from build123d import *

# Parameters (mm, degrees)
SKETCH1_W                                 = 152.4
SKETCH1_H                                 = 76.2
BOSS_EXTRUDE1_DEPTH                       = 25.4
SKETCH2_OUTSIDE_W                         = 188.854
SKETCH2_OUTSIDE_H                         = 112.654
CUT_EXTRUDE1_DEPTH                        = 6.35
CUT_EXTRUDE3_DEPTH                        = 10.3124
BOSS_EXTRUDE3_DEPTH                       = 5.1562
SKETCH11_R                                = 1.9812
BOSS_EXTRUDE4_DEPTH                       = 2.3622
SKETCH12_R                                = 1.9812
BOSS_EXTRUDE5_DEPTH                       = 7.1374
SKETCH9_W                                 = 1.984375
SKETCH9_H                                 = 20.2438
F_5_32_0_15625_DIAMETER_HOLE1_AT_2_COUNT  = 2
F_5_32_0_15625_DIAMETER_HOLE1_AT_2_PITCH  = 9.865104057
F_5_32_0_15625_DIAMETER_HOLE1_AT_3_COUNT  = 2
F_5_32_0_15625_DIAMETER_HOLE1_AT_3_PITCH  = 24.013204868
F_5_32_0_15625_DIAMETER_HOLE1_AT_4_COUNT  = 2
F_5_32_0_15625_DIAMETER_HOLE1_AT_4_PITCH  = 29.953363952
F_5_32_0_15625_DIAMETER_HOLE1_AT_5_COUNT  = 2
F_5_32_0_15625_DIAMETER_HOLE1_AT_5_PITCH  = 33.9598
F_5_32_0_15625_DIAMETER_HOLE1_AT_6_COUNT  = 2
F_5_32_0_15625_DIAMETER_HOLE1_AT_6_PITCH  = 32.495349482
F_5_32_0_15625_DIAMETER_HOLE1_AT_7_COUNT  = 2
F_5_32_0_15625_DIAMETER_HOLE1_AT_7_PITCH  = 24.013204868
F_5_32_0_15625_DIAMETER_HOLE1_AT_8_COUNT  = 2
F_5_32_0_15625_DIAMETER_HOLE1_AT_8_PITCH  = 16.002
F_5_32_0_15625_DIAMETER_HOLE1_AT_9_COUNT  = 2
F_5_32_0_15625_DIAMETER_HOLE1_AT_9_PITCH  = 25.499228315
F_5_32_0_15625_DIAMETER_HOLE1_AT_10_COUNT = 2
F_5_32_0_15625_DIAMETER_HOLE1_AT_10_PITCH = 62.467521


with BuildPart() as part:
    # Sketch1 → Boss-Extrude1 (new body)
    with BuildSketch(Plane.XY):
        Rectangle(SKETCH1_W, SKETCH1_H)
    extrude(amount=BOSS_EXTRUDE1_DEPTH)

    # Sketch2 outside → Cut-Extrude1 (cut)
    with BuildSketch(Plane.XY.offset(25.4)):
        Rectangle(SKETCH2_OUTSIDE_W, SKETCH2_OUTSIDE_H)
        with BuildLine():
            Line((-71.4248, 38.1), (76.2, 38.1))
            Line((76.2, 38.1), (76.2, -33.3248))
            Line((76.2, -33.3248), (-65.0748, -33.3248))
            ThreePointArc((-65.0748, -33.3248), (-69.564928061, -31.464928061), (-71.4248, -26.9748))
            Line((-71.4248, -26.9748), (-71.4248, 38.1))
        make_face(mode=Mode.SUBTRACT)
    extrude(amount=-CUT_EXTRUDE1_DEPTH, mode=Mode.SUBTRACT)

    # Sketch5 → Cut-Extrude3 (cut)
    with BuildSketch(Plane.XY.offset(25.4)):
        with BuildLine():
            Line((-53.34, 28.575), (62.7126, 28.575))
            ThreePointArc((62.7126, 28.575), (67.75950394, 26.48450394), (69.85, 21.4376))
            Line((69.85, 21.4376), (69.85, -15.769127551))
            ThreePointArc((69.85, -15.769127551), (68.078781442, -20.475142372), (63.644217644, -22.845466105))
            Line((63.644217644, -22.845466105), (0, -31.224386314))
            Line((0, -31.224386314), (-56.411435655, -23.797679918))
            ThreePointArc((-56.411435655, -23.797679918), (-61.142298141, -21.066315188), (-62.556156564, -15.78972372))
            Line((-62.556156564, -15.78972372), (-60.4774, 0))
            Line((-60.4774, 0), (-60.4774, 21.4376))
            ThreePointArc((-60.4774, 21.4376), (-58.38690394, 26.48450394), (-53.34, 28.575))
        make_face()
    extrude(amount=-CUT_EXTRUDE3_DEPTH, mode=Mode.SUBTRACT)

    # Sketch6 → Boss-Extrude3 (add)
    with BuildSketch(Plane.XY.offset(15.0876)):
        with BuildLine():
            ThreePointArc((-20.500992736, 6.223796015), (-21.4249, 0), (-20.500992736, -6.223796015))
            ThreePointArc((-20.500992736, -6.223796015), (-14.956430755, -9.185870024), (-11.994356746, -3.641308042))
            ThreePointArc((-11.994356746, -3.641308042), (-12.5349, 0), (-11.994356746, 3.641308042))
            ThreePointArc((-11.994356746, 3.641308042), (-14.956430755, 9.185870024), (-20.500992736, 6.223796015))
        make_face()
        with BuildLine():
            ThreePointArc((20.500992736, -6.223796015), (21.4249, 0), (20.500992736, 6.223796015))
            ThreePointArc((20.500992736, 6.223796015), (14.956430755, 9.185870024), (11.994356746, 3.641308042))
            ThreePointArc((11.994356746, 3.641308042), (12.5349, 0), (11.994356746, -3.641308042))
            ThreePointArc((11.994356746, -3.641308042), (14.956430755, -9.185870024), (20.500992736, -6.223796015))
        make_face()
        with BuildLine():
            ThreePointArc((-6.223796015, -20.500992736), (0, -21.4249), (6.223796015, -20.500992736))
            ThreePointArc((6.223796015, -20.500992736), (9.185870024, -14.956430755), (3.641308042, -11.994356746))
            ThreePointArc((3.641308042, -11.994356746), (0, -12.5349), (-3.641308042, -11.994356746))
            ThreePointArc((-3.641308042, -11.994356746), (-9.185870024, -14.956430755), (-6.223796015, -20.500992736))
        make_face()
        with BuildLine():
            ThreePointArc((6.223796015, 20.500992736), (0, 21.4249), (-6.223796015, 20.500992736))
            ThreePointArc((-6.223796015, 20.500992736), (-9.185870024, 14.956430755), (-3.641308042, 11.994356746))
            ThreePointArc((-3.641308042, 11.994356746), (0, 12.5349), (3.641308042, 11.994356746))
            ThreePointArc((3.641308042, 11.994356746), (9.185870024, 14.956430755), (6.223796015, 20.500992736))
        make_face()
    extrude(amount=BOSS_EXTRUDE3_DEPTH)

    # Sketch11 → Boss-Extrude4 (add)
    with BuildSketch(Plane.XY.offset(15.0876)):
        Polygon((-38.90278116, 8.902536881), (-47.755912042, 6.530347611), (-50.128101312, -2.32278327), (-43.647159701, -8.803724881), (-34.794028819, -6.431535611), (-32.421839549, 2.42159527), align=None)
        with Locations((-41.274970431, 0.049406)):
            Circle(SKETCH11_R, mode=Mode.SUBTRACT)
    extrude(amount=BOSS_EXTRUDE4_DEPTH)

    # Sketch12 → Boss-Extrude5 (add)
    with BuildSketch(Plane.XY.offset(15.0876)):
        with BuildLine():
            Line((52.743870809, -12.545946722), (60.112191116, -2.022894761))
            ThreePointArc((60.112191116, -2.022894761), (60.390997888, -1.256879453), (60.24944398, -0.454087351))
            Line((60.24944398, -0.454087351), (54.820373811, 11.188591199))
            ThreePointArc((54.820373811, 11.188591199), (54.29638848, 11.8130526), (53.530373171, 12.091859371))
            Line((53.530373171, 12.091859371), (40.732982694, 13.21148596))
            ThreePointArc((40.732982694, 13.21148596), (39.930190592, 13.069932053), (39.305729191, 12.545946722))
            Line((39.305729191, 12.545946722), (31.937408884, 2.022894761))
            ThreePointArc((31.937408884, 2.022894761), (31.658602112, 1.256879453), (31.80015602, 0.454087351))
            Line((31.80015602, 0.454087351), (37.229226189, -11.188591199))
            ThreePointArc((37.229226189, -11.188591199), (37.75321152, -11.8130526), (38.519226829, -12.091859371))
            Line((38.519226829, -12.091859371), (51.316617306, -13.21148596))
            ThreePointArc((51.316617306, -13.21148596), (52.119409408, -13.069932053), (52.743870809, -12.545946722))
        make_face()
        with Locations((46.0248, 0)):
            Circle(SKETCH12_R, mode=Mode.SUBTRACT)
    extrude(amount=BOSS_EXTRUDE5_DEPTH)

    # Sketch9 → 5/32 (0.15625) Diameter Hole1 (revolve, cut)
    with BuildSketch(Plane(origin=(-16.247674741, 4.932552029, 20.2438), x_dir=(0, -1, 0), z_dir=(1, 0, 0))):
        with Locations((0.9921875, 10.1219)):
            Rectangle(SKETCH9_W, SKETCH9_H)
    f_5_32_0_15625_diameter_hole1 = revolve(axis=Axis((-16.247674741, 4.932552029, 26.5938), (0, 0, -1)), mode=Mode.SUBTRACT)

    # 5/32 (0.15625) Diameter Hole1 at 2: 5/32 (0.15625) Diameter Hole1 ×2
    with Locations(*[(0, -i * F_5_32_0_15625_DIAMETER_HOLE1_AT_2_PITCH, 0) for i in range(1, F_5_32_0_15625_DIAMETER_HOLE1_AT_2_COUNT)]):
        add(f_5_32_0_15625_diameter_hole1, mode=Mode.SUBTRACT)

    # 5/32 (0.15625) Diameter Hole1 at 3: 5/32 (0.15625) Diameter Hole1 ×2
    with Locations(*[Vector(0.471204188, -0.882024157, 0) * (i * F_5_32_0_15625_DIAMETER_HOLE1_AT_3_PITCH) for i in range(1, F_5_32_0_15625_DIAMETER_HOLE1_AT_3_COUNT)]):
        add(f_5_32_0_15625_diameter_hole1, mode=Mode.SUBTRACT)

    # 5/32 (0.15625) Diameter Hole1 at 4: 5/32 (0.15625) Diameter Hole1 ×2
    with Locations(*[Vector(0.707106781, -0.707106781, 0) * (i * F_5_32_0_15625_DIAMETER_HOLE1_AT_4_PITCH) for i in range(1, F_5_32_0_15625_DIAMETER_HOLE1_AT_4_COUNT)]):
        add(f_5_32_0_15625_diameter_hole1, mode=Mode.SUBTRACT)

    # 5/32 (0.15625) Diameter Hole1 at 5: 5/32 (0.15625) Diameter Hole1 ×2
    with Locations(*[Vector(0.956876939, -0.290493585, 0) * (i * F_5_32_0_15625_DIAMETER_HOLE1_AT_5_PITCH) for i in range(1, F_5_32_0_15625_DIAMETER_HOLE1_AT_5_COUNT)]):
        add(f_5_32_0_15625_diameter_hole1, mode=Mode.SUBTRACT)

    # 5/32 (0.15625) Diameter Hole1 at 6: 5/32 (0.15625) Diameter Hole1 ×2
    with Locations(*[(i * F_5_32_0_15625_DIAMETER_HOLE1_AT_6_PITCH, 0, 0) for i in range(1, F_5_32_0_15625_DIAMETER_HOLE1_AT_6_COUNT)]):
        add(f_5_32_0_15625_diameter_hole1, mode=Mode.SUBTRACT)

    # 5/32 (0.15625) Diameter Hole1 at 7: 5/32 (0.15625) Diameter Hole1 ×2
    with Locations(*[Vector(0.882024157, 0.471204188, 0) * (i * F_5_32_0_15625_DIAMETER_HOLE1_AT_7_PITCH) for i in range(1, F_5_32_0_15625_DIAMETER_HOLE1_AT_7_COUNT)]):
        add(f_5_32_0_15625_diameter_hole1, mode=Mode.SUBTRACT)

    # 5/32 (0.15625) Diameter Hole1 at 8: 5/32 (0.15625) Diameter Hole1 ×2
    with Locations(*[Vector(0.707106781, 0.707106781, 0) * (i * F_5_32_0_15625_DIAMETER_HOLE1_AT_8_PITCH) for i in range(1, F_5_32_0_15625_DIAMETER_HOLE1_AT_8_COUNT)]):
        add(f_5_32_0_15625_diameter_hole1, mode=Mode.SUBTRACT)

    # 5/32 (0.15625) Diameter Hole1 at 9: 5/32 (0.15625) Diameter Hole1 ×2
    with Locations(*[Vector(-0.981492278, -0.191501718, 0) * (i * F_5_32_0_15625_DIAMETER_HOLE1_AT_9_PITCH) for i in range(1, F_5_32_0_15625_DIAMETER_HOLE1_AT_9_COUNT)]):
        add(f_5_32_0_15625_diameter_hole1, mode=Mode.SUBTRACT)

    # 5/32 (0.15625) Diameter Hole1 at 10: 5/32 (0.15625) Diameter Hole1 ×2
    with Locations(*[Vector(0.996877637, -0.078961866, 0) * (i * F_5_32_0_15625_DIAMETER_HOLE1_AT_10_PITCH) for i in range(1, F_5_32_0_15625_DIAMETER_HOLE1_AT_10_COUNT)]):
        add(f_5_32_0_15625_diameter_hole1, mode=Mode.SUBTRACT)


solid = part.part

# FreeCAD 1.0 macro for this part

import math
import FreeCAD as App
import Part
import Sketcher
Q = App.Units.Quantity


def add_polygon(sketch, points):
    """Adds a closed chain of lines whose ends are joined by coincident constraints."""
    first, n = sketch.GeometryCount, len(points)
    for a, b in zip(points, points[1:] + points[:1]):
        sketch.addGeometry(Part.LineSegment(App.Vector(*a, 0), App.Vector(*b, 0)), False)
    for i in range(n):
        sketch.addConstraint(Sketcher.Constraint("Coincident", first + i, 2, first + (i + 1) % n, 1))

doc = App.newDocument("Part")
params = doc.addObject("Spreadsheet::Sheet", "Params")
for row, (alias, value) in enumerate([
    ("sketch1_width", "6 in"),
    ("sketch1_height", "3 in"),
    ("pad1_length", "1 in"),
    ("sketch2_radius", "0.25 in"),
    ("sketch2_width", "5.812 in"),
    ("sketch2_height", "2.562 in"),
    ("pocket1_length", "0.25 in"),
    ("sketch3_radius", "0.281 in"),
    ("sketch3_width", "4.569 in"),
    ("sketch3_height", "0.844 in"),
    ("pocket2_length", "0.406 in"),
    ("sketch4_radius", "0.175 in"),
    ("pad2_length", "0.203 in"),
    ("sketch5_diameter", "0.156 in"),
    ("pad3_length", "0.093 in"),
    ("sketch6_diameter", "0.156 in"),
    ("sketch6_radius", "0.062 in"),
    ("pad4_length", "0.281 in"),
    ("sketch7_width", "0.078125 in"),
    ("sketch7_height", "0.797 in"),
    ("groove_angle", "360 deg"),
    ("linearpattern_pitch", "9.865104 mm"),
    ("linearpattern2_pitch", "24.013205 mm"),
    ("linearpattern3_pitch", "29.953364 mm"),
    ("linearpattern4_pitch", "1.337 in"),
    ("linearpattern5_pitch", "32.495349 mm"),
    ("linearpattern6_pitch", "24.013205 mm"),
    ("linearpattern7_pitch", "0.63 in"),
    ("linearpattern8_pitch", "25.499228 mm"),
    ("linearpattern9_pitch", "62.467521 mm"),
], start=1):
    params.set(f"A{row}", alias)
    params.set(f"B{row}", "=" + value)
    params.setAlias(f"B{row}", alias)

body = doc.addObject("PartDesign::Body", "Body")

# Sketch on XY plane
sketch1 = body.newObject("Sketcher::SketchObject", "Sketch")
sketch1.AttachmentSupport = (doc.getObject("XY_Plane"), [""])
sketch1.MapMode = "FlatFace"
add_polygon(sketch1, [(-76, 38), (-76, -38), (76, -38), (76, 38)])  # lines 0-3
sketch1.addConstraint(Sketcher.Constraint("Vertical", 0))
sketch1.addConstraint(Sketcher.Constraint("Horizontal", 1))
sketch1.addConstraint(Sketcher.Constraint("Vertical", 2))
sketch1.addConstraint(Sketcher.Constraint("Horizontal", 3))
sketch1.addConstraint(Sketcher.Constraint("Symmetric", 0, 2, 2, 2, -1, 1))
sketch1.addConstraint(Sketcher.Constraint("DistanceX", 1, 1, 1, 2, Q("6 in")))
sketch1.addConstraint(Sketcher.Constraint("DistanceY", 0, 2, 0, 1, Q("3 in")))
sketch1.setExpression("Constraints[9]", "Params.sketch1_width")
sketch1.setExpression("Constraints[10]", "Params.sketch1_height")
pad1 = body.newObject("PartDesign::Pad", "Pad")
pad1.Profile = sketch1
pad1.setExpression("Length", "Params.pad1_length")

# Sketch on XY plane
sketch2 = body.newObject("Sketcher::SketchObject", "Sketch001")
sketch2.AttachmentSupport = (doc.getObject("XY_Plane"), [""])
sketch2.MapMode = "FlatFace"
sketch2.AttachmentOffset = App.Placement(App.Vector(0, 0, 1 * 25.4), App.Rotation())
add_polygon(sketch2, [(-94, 56), (-94, -56), (94, -56), (94, 56)])  # lines 0-3
sketch2.addGeometry(Part.LineSegment(App.Vector(-71, -27, 0), App.Vector(-71, 38, 0)), False)  # 4
sketch2.addGeometry(Part.LineSegment(App.Vector(-71, 38, 0), App.Vector(76, 38, 0)), False)  # 5
sketch2.addGeometry(Part.LineSegment(App.Vector(76, 38, 0), App.Vector(76, -33, 0)), False)  # 6
sketch2.addGeometry(Part.LineSegment(App.Vector(76, -33, 0), App.Vector(-65, -33, 0)), False)  # 7
sketch2.addGeometry(Part.ArcOfCircle(Part.Circle(App.Vector(-65, -27, 0), App.Vector(0, 0, 1), 6), math.radians(180), math.radians(270)), False)  # 8
sketch2.addConstraint(Sketcher.Constraint("Coincident", 4, 2, 5, 1))
sketch2.addConstraint(Sketcher.Constraint("Coincident", 5, 2, 6, 1))
sketch2.addConstraint(Sketcher.Constraint("Coincident", 6, 2, 7, 1))
sketch2.addConstraint(Sketcher.Constraint("Tangent", 7, 2, 8, 2))
sketch2.addConstraint(Sketcher.Constraint("Tangent", 8, 1, 4, 1))
sketch2.addConstraint(Sketcher.Constraint("Vertical", 0))
sketch2.addConstraint(Sketcher.Constraint("Horizontal", 1))
sketch2.addConstraint(Sketcher.Constraint("Vertical", 2))
sketch2.addConstraint(Sketcher.Constraint("Horizontal", 3))
sketch2.addConstraint(Sketcher.Constraint("Vertical", 4))
sketch2.addConstraint(Sketcher.Constraint("Horizontal", 5))
sketch2.addConstraint(Sketcher.Constraint("Vertical", 6))
sketch2.addConstraint(Sketcher.Constraint("Horizontal", 7))
sketch2.addConstraint(Sketcher.Constraint("Symmetric", 0, 2, 2, 2, -1, 1))
sketch2.addConstraint(Sketcher.Constraint("Radius", 8, Q("0.25 in")))
sketch2.addConstraint(Sketcher.Constraint("DistanceX", -1, 1, 5, 2, Q("3 in")))
sketch2.addConstraint(Sketcher.Constraint("DistanceY", -1, 1, 4, 2, Q("1.5 in")))
sketch2.addConstraint(Sketcher.Constraint("DistanceX", 5, 1, 5, 2, Q("5.812 in")))
sketch2.addConstraint(Sketcher.Constraint("DistanceY", 4, 1, 4, 2, Q("2.562 in")))
sketch2.addConstraint(Sketcher.Constraint("DistanceX", 1, 1, 1, 2, 188.854))
sketch2.addConstraint(Sketcher.Constraint("DistanceY", 0, 2, 0, 1, 112.654))
sketch2.setExpression("Constraints[18]", "Params.sketch2_radius")
sketch2.setExpression("Constraints[21]", "Params.sketch2_width")
sketch2.setExpression("Constraints[22]", "Params.sketch2_height")
pocket1 = body.newObject("PartDesign::Pocket", "Pocket")
pocket1.Profile = sketch2
pocket1.setExpression("Length", "Params.pocket1_length")

# Sketch on XY plane
sketch3 = body.newObject("Sketcher::SketchObject", "Sketch002")
sketch3.AttachmentSupport = (doc.getObject("XY_Plane"), [""])
sketch3.MapMode = "FlatFace"
sketch3.AttachmentOffset = App.Placement(App.Vector(0, 0, 1 * 25.4), App.Rotation())
sketch3.addGeometry(Part.LineSegment(App.Vector(63, 29, 0), App.Vector(-53, 29, 0)), False)
sketch3.addGeometry(Part.ArcOfCircle(Part.Circle(App.Vector(-53, 21, 0), App.Vector(0, 0, 1), 7), math.radians(90), math.radians(180)), False)
sketch3.addGeometry(Part.LineSegment(App.Vector(-60, 21, 0), App.Vector(-60, 0, 0)), False)
sketch3.addGeometry(Part.LineSegment(App.Vector(-60, 0, 0), App.Vector(-63, -16, 0)), False)
sketch3.addGeometry(Part.ArcOfCircle(Part.Circle(App.Vector(-55, -17, 0), App.Vector(0, 0, 1), 7), math.radians(173), math.radians(262)), False)
sketch3.addGeometry(Part.LineSegment(App.Vector(-56, -24, 0), App.Vector(0, -31, 0)), False)
sketch3.addGeometry(Part.LineSegment(App.Vector(0, -31, 0), App.Vector(64, -23, 0)), False)
sketch3.addGeometry(Part.ArcOfCircle(Part.Circle(App.Vector(63, -16, 0), App.Vector(0, 0, 1), 7), math.radians(-83), math.radians(0)), False)
sketch3.addGeometry(Part.LineSegment(App.Vector(70, -16, 0), App.Vector(70, 21, 0)), False)
sketch3.addGeometry(Part.ArcOfCircle(Part.Circle(App.Vector(63, 21, 0), App.Vector(0, 0, 1), 7), math.radians(0), math.radians(90)), False)
sketch3.addConstraint(Sketcher.Constraint("Tangent", 0, 2, 1, 1))
sketch3.addConstraint(Sketcher.Constraint("Tangent", 1, 2, 2, 1))
sketch3.addConstraint(Sketcher.Constraint("Coincident", 2, 2, 3, 1))
sketch3.addConstraint(Sketcher.Constraint("Tangent", 3, 2, 4, 1))
sketch3.addConstraint(Sketcher.Constraint("Tangent", 4, 2, 5, 1))
sketch3.addConstraint(Sketcher.Constraint("Coincident", 5, 2, 6, 1))
sketch3.addConstraint(Sketcher.Constraint("Tangent", 6, 2, 7, 1))
sketch3.addConstraint(Sketcher.Constraint("Tangent", 7, 2, 8, 1))
sketch3.addConstraint(Sketcher.Constraint("Tangent", 8, 2, 9, 1))
sketch3.addConstraint(Sketcher.Constraint("Tangent", 9, 2, 0, 1))
sketch3.addConstraint(Sketcher.Constraint("Horizontal", 0))
sketch3.addConstraint(Sketcher.Constraint("Vertical", 2))
sketch3.addConstraint(Sketcher.Constraint("Vertical", 8))
sketch3.addConstraint(Sketcher.Constraint("Equal", 1, 4))
sketch3.addConstraint(Sketcher.Constraint("Equal", 4, 7))
sketch3.addConstraint(Sketcher.Constraint("Equal", 7, 9))
sketch3.addConstraint(Sketcher.Constraint("PointOnObject", 2, 2, -1))
sketch3.addConstraint(Sketcher.Constraint("PointOnObject", 5, 2, -2))
sketch3.addConstraint(Sketcher.Constraint("Perpendicular", 3, 5))
sketch3.addConstraint(Sketcher.Constraint("Radius", 1, Q("0.281 in")))
sketch3.addConstraint(Sketcher.Constraint("DistanceX", 1, 3, -1, 1, Q("2.1 in")))
sketch3.addConstraint(Sketcher.Constraint("Angle", 3, Q("-97.5 deg")))
sketch3.addConstraint(Sketcher.Constraint("Angle", 6, Q("7.5 deg")))
sketch3.addConstraint(Sketcher.Constraint("DistanceX", 0, 2, 0, 1, Q("4.569 in")))
sketch3.addConstraint(Sketcher.Constraint("DistanceY", 2, 2, 2, 1, Q("0.844 in")))
sketch3.addConstraint(Sketcher.Constraint("DistanceY", 8, 1, 8, 2, 37.206728))
sketch3.setExpression("Constraints[19]", "Params.sketch3_radius")
sketch3.setExpression("Constraints[23]", "Params.sketch3_width")
sketch3.setExpression("Constraints[24]", "Params.sketch3_height")
pocket2 = body.newObject("PartDesign::Pocket", "Pocket001")
pocket2.Profile = sketch3
pocket2.setExpression("Length", "Params.pocket2_length")

# Sketch on XY plane
sketch4 = body.newObject("Sketcher::SketchObject", "Sketch003")
sketch4.AttachmentSupport = (doc.getObject("XY_Plane"), [""])
sketch4.MapMode = "FlatFace"
sketch4.AttachmentOffset = App.Placement(App.Vector(0, 0, 0.594 * 25.4), App.Rotation())
sketch4.addGeometry(Part.ArcOfCircle(Part.Circle(App.Vector(0, 0, 0), App.Vector(0, 0, 1), 21.4), math.radians(163), math.radians(197)), False)
sketch4.addGeometry(Part.ArcOfCircle(Part.Circle(App.Vector(-16.2, -4.9, 0), App.Vector(0, 0, 1), 4.4), math.radians(-163), math.radians(17)), False)
sketch4.addGeometry(Part.ArcOfCircle(Part.Circle(App.Vector(0, 0, 0), App.Vector(0, 0, 1), 12.5), math.radians(163), math.radians(197)), False)
sketch4.addGeometry(Part.ArcOfCircle(Part.Circle(App.Vector(-16.2, 4.9, 0), App.Vector(0, 0, 1), 4.4), math.radians(-17), math.radians(163)), False)
sketch4.addGeometry(Part.ArcOfCircle(Part.Circle(App.Vector(0, 0, 0), App.Vector(0, 0, 1), 21.4), math.radians(-17), math.radians(17)), False)
sketch4.addGeometry(Part.ArcOfCircle(Part.Circle(App.Vector(16.2, 4.9, 0), App.Vector(0, 0, 1), 4.4), math.radians(17), math.radians(197)), False)
sketch4.addGeometry(Part.ArcOfCircle(Part.Circle(App.Vector(0, 0, 0), App.Vector(0, 0, 1), 12.5), math.radians(-17), math.radians(17)), False)
sketch4.addGeometry(Part.ArcOfCircle(Part.Circle(App.Vector(16.2, -4.9, 0), App.Vector(0, 0, 1), 4.4), math.radians(163), math.radians(343)), False)
sketch4.addGeometry(Part.ArcOfCircle(Part.Circle(App.Vector(0, 0, 0), App.Vector(0, 0, 1), 21.4), math.radians(-107), math.radians(-73)), False)
sketch4.addGeometry(Part.ArcOfCircle(Part.Circle(App.Vector(4.9, -16.2, 0), App.Vector(0, 0, 1), 4.4), math.radians(-73), math.radians(107)), False)
sketch4.addGeometry(Part.ArcOfCircle(Part.Circle(App.Vector(0, 0, 0), App.Vector(0, 0, 1), 12.5), math.radians(-107), math.radians(-73)), False)
sketch4.addGeometry(Part.ArcOfCircle(Part.Circle(App.Vector(-4.9, -16.2, 0), App.Vector(0, 0, 1), 4.4), math.radians(73), math.radians(253)), False)
sketch4.addGeometry(Part.ArcOfCircle(Part.Circle(App.Vector(0, 0, 0), App.Vector(0, 0, 1), 21.4), math.radians(73), math.radians(107)), False)
sketch4.addGeometry(Part.ArcOfCircle(Part.Circle(App.Vector(-4.9, 16.2, 0), App.Vector(0, 0, 1), 4.4), math.radians(107), math.radians(287)), False)
sketch4.addGeometry(Part.ArcOfCircle(Part.Circle(App.Vector(0, 0, 0), App.Vector(0, 0, 1), 12.5), math.radians(73), math.radians(107)), False)
sketch4.addGeometry(Part.ArcOfCircle(Part.Circle(App.Vector(4.9, 16.2, 0), App.Vector(0, 0, 1), 4.4), math.radians(-107), math.radians(73)), False)
sketch4.addConstraint(Sketcher.Constraint("Tangent", 0, 2, 1, 1))
sketch4.addConstraint(Sketcher.Constraint("Tangent", 1, 2, 2, 2))
sketch4.addConstraint(Sketcher.Constraint("Tangent", 2, 1, 3, 1))
sketch4.addConstraint(Sketcher.Constraint("Tangent", 3, 2, 0, 1))
sketch4.addConstraint(Sketcher.Constraint("Tangent", 4, 2, 5, 1))
sketch4.addConstraint(Sketcher.Constraint("Tangent", 5, 2, 6, 2))
sketch4.addConstraint(Sketcher.Constraint("Tangent", 6, 1, 7, 1))
sketch4.addConstraint(Sketcher.Constraint("Tangent", 7, 2, 4, 1))
sketch4.addConstraint(Sketcher.Constraint("Tangent", 8, 2, 9, 1))
sketch4.addConstraint(Sketcher.Constraint("Tangent", 9, 2, 10, 2))
sketch4.addConstraint(Sketcher.Constraint("Tangent", 10, 1, 11, 1))
sketch4.addConstraint(Sketcher.Constraint("Tangent", 11, 2, 8, 1))
sketch4.addConstraint(Sketcher.Constraint("Tangent", 12, 2, 13, 1))
sketch4.addConstraint(Sketcher.Constraint("Tangent", 13, 2, 14, 2))
sketch4.addConstraint(Sketcher.Constraint("Tangent", 14, 1, 15, 1))
sketch4.addConstraint(Sketcher.Constraint("Tangent", 15, 2, 12, 1))
sketch4.addConstraint(Sketcher.Constraint("Coincident", 0, 3, -1, 1))
sketch4.addConstraint(Sketcher.Constraint("Coincident", 2, 3, -1, 1))
sketch4.addConstraint(Sketcher.Constraint("Coincident", 4, 3, -1, 1))
sketch4.addConstraint(Sketcher.Constraint("Coincident", 6, 3, -1, 1))
sketch4.addConstraint(Sketcher.Constraint("Coincident", 8, 3, -1, 1))
sketch4.addConstraint(Sketcher.Constraint("Coincident", 10, 3, -1, 1))
sketch4.addConstraint(Sketcher.Constraint("Coincident", 12, 3, -1, 1))
sketch4.addConstraint(Sketcher.Constraint("Coincident", 14, 3, -1, 1))
sketch4.addConstraint(Sketcher.Constraint("Equal", 0, 4))
sketch4.addConstraint(Sketcher.Constraint("Equal", 3, 5))
sketch4.addConstraint(Sketcher.Constraint("Equal", 4, 8))
sketch4.addConstraint(Sketcher.Constraint("Equal", 7, 9))
sketch4.addConstraint(Sketcher.Constraint("Equal", 8, 12))
sketch4.addConstraint(Sketcher.Constraint("Equal", 11, 13))
sketch4.addConstraint(Sketcher.Constraint("Horizontal", 3, 3, 5, 3))
sketch4.addConstraint(Sketcher.Constraint("Horizontal", 1, 3, 7, 3))
sketch4.addConstraint(Sketcher.Constraint("Horizontal", 9, 3, 11, 3))
sketch4.addConstraint(Sketcher.Constraint("Horizontal", 13, 3, 15, 3))
sketch4.addConstraint(Sketcher.Constraint("Vertical", 1, 3, 3, 3))
sketch4.addConstraint(Sketcher.Constraint("Vertical", 11, 3, 13, 3))
sketch4.addConstraint(Sketcher.Constraint("Radius", 1, Q("0.175 in")))
sketch4.addConstraint(Sketcher.Constraint("Radius", 0, Q("0.8435 in")))
sketch4.addConstraint(Sketcher.Constraint("DistanceY", 1, 2, -1, 1, 3.641308))
sketch4.addConstraint(Sketcher.Constraint("DistanceX", -1, 1, 9, 2, 3.641308))
sketch4.setExpression("Constraints[36]", "Params.sketch4_radius")
pad2 = body.newObject("PartDesign::Pad", "Pad001")
pad2.Profile = sketch4
pad2.setExpression("Length", "Params.pad2_length")

# Sketch on XY plane
sketch5 = body.newObject("Sketcher::SketchObject", "Sketch004")
sketch5.AttachmentSupport = (doc.getObject("XY_Plane"), [""])
sketch5.MapMode = "FlatFace"
sketch5.AttachmentOffset = App.Placement(App.Vector(0, 0, 0.594 * 25.4), App.Rotation())
add_polygon(sketch5, [(-38.9, 8.9), (-47.8, 6.5), (-50.1, -2.3), (-43.6, -8.8), (-34.8, -6.4), (-32.4, 2.4)])  # lines 0-5
sketch5.addGeometry(Part.Circle(App.Vector(-41.3, 0, 0), App.Vector(0, 0, 1), 2), False)  # 6
sketch5.addConstraint(Sketcher.Constraint("Parallel", 0, 3))
sketch5.addConstraint(Sketcher.Constraint("Parallel", 1, 4))
sketch5.addConstraint(Sketcher.Constraint("Parallel", 2, 5))
sketch5.addConstraint(Sketcher.Constraint("Equal", 0, 1))
sketch5.addConstraint(Sketcher.Constraint("Equal", 1, 2))
sketch5.addConstraint(Sketcher.Constraint("Equal", 2, 3))
sketch5.addConstraint(Sketcher.Constraint("Diameter", 6, Q("0.156 in")))
sketch5.addConstraint(Sketcher.Constraint("Angle", 0, Q("-165 deg")))
sketch5.addConstraint(Sketcher.Constraint("Angle", 1, Q("-105 deg")))
sketch5.addConstraint(Sketcher.Constraint("Angle", 2, Q("-45 deg")))
sketch5.addConstraint(Sketcher.Constraint("DistanceX", 1, 2, -1, 1, 50.128101))
sketch5.addConstraint(Sketcher.Constraint("DistanceX", 6, 3, -1, 1, 41.27497))
sketch5.addConstraint(Sketcher.Constraint("DistanceX", 2, 2, -1, 1, 43.64716))
sketch5.addConstraint(Sketcher.Constraint("DistanceY", 6, 3, 0, 2, 6.480942))
sketch5.addConstraint(Sketcher.Constraint("DistanceY", -1, 1, 6, 3, 0.049406))
sketch5.setExpression("Constraints[12]", "Params.sketch5_diameter")
pad3 = body.newObject("PartDesign::Pad", "Pad002")
pad3.Profile = sketch5
pad3.setExpression("Length", "Params.pad3_length")

# Sketch on XY plane
sketch6 = body.newObject("Sketcher::SketchObject", "Sketch005")
sketch6.AttachmentSupport = (doc.getObject("XY_Plane"), [""])
sketch6.MapMode = "FlatFace"
sketch6.AttachmentOffset = App.Placement(App.Vector(0, 0, 0.594 * 25.4), App.Rotation())
sketch6.addGeometry(Part.LineSegment(App.Vector(52.7, -12.5, 0), App.Vector(60.1, -2, 0)), False)
sketch6.addGeometry(Part.ArcOfCircle(Part.Circle(App.Vector(58.8, -1.1, 0), App.Vector(0, 0, 1), 1.6), math.radians(-35), math.radians(25)), False)
sketch6.addGeometry(Part.LineSegment(App.Vector(60.2, -0.5, 0), App.Vector(54.8, 11.2, 0)), False)
sketch6.addGeometry(Part.ArcOfCircle(Part.Circle(App.Vector(53.4, 10.5, 0), App.Vector(0, 0, 1), 1.6), math.radians(25), math.radians(85)), False)
sketch6.addGeometry(Part.LineSegment(App.Vector(53.5, 12.1, 0), App.Vector(40.7, 13.2, 0)), False)
sketch6.addGeometry(Part.ArcOfCircle(Part.Circle(App.Vector(40.6, 11.6, 0), App.Vector(0, 0, 1), 1.6), math.radians(85), math.radians(145)), False)
sketch6.addGeometry(Part.LineSegment(App.Vector(39.3, 12.5, 0), App.Vector(31.9, 2, 0)), False)
sketch6.addGeometry(Part.ArcOfCircle(Part.Circle(App.Vector(33.2, 1.1, 0), App.Vector(0, 0, 1), 1.6), math.radians(145), math.radians(205)), False)
sketch6.addGeometry(Part.LineSegment(App.Vector(31.8, 0.5, 0), App.Vector(37.2, -11.2, 0)), False)
sketch6.addGeometry(Part.ArcOfCircle(Part.Circle(App.Vector(38.7, -10.5, 0), App.Vector(0, 0, 1), 1.6), math.radians(-155), math.radians(-95)), False)
sketch6.addGeometry(Part.LineSegment(App.Vector(38.5, -12.1, 0), App.Vector(51.3, -13.2, 0)), False)
sketch6.addGeometry(Part.ArcOfCircle(Part.Circle(App.Vector(51.5, -11.6, 0), App.Vector(0, 0, 1), 1.6), math.radians(-95), math.radians(-35)), False)
sketch6.addGeometry(Part.Circle(App.Vector(46, 0, 0), App.Vector(0, 0, 1), 2), False)
sketch6.addConstraint(Sketcher.Constraint("Tangent", 0, 2, 1, 1))
sketch6.addConstraint(Sketcher.Constraint("Tangent", 1, 2, 2, 1))
sketch6.addConstraint(Sketcher.Constraint("Tangent", 2, 2, 3, 1))
sketch6.addConstraint(Sketcher.Constraint("Tangent", 3, 2, 4, 1))
sketch6.addConstraint(Sketcher.Constraint("Tangent", 4, 2, 5, 1))
sketch6.addConstraint(Sketcher.Constraint("Tangent", 5, 2, 6, 1))
sketch6.addConstraint(Sketcher.Constraint("Tangent", 6, 2, 7, 1))
sketch6.addConstraint(Sketcher.Constraint("Tangent", 7, 2, 8, 1))
sketch6.addConstraint(Sketcher.Constraint("Tangent", 8, 2, 9, 1))
sketch6.addConstraint(Sketcher.Constraint("Tangent", 9, 2, 10, 1))
sketch6.addConstraint(Sketcher.Constraint("Tangent", 10, 2, 11, 1))
sketch6.addConstraint(Sketcher.Constraint("Tangent", 11, 2, 0, 1))
sketch6.addConstraint(Sketcher.Constraint("Equal", 1, 3))
sketch6.addConstraint(Sketcher.Constraint("Equal", 3, 5))
sketch6.addConstraint(Sketcher.Constraint("Equal", 5, 7))
sketch6.addConstraint(Sketcher.Constraint("Equal", 7, 9))
sketch6.addConstraint(Sketcher.Constraint("Equal", 9, 11))
sketch6.addConstraint(Sketcher.Constraint("PointOnObject", 12, 3, -1))
sketch6.addConstraint(Sketcher.Constraint("Parallel", 0, 6))
sketch6.addConstraint(Sketcher.Constraint("Parallel", 2, 8))
sketch6.addConstraint(Sketcher.Constraint("Parallel", 4, 10))
sketch6.addConstraint(Sketcher.Constraint("Equal", 0, 2))
sketch6.addConstraint(Sketcher.Constraint("Equal", 2, 4))
sketch6.addConstraint(Sketcher.Constraint("Equal", 4, 6))
sketch6.addConstraint(Sketcher.Constraint("Diameter", 12, Q("0.156 in")))
sketch6.addConstraint(Sketcher.Constraint("Angle", 0, Q("55 deg")))
sketch6.addConstraint(Sketcher.Constraint("Angle", 2, Q("115 deg")))
sketch6.addConstraint(Sketcher.Constraint("Angle", 4, Q("175 deg")))
sketch6.addConstraint(Sketcher.Constraint("Radius", 1, Q("0.062 in")))
sketch6.addConstraint(Sketcher.Constraint("DistanceX", -1, 1, 12, 3, Q("1.812 in")))
sketch6.addConstraint(Sketcher.Constraint("DistanceX", -1, 1, 1, 3, 58.82219))
sketch6.addConstraint(Sketcher.Constraint("DistanceX", -1, 1, 3, 3, 53.39312))
sketch6.addConstraint(Sketcher.Constraint("DistanceY", -1, 1, 3, 3, 10.523052))
sketch6.setExpression("Constraints[24]", "Params.sketch6_diameter")
sketch6.setExpression("Constraints[28]", "Params.sketch6_radius")
pad4 = body.newObject("PartDesign::Pad", "Pad003")
pad4.Profile = sketch6
pad4.setExpression("Length", "Params.pad4_length")

# Sketch on YZ plane
sketch7 = body.newObject("Sketcher::SketchObject", "Sketch006")
sketch7.AttachmentSupport = (doc.getObject("YZ_Plane"), [""])
sketch7.MapMode = "FlatFace"
sketch7.AttachmentOffset = App.Placement(App.Vector(0, 0, -16.247675), App.Rotation())
add_polygon(sketch7, [(4.9, 0), (4.9, 20.2), (2.9, 20.2), (2.9, 0)])  # lines 0-3
sketch7.addGeometry(Part.LineSegment(App.Vector(4.9, 20.2, 0), App.Vector(4.9, 0, 0)), True)  # axis
sketch7.addConstraint(Sketcher.Constraint("Vertical", 0))
sketch7.addConstraint(Sketcher.Constraint("Horizontal", 1))
sketch7.addConstraint(Sketcher.Constraint("Vertical", 2))
sketch7.addConstraint(Sketcher.Constraint("Horizontal", 3))
sketch7.addConstraint(Sketcher.Constraint("Vertical", 4))
sketch7.addConstraint(Sketcher.Constraint("Coincident", 4, 1, 0, 2))
sketch7.addConstraint(Sketcher.Constraint("PointOnObject", 2, 2, -1))
sketch7.addConstraint(Sketcher.Constraint("PointOnObject", 4, 2, -1))
sketch7.addConstraint(Sketcher.Constraint("DistanceX", 1, 2, 1, 1, Q("0.078125 in")))
sketch7.addConstraint(Sketcher.Constraint("DistanceY", 0, 1, 0, 2, Q("0.797 in")))
sketch7.addConstraint(Sketcher.Constraint("DistanceX", -1, 1, 0, 2, 4.932552))
sketch7.setExpression("Constraints[12]", "Params.sketch7_width")
sketch7.setExpression("Constraints[13]", "Params.sketch7_height")
groove = body.newObject("PartDesign::Groove", "Groove")
groove.Profile = sketch7
groove.ReferenceAxis = (sketch7, ["Axis0"])
groove.setExpression("Angle", "Params.groove_angle")
doc.recompute()

linearpattern = body.newObject("PartDesign::LinearPattern", "LinearPattern")
linearpattern.Originals = [groove]
linearpattern.Direction = (doc.getObject("Y_Axis"), [""])
linearpattern.Mode = "offset"
linearpattern.setExpression("Offset", "Params.linearpattern_pitch")
linearpattern.Occurrences = 2
linearpattern.Reversed = True
body.Tip = linearpattern
doc.recompute()

datumline = body.newObject("PartDesign::Line", "DatumLine")
datumline.Placement = App.Placement(App.Vector(0, 0, 0), App.Rotation(App.Vector(0, 0, 1), App.Vector(0.471204188, -0.882024157, 0)))
linearpattern2 = body.newObject("PartDesign::LinearPattern", "LinearPattern001")
linearpattern2.Originals = [groove]
linearpattern2.Direction = (datumline, [""])
linearpattern2.Mode = "offset"
linearpattern2.setExpression("Offset", "Params.linearpattern2_pitch")
linearpattern2.Occurrences = 2
body.Tip = linearpattern2
doc.recompute()

datumline2 = body.newObject("PartDesign::Line", "DatumLine001")
datumline2.Placement = App.Placement(App.Vector(0, 0, 0), App.Rotation(App.Vector(0, 0, 1), App.Vector(0.707106781, -0.707106781, 0)))
linearpattern3 = body.newObject("PartDesign::LinearPattern", "LinearPattern002")
linearpattern3.Originals = [groove]
linearpattern3.Direction = (datumline2, [""])
linearpattern3.Mode = "offset"
linearpattern3.setExpression("Offset", "Params.linearpattern3_pitch")
linearpattern3.Occurrences = 2
body.Tip = linearpattern3
doc.recompute()

datumline3 = body.newObject("PartDesign::Line", "DatumLine002")
datumline3.Placement = App.Placement(App.Vector(0, 0, 0), App.Rotation(App.Vector(0, 0, 1), App.Vector(0.956876939, -0.290493585, 0)))
linearpattern4 = body.newObject("PartDesign::LinearPattern", "LinearPattern003")
linearpattern4.Originals = [groove]
linearpattern4.Direction = (datumline3, [""])
linearpattern4.Mode = "offset"
linearpattern4.setExpression("Offset", "Params.linearpattern4_pitch")
linearpattern4.Occurrences = 2
body.Tip = linearpattern4
doc.recompute()

linearpattern5 = body.newObject("PartDesign::LinearPattern", "LinearPattern004")
linearpattern5.Originals = [groove]
linearpattern5.Direction = (doc.getObject("X_Axis"), [""])
linearpattern5.Mode = "offset"
linearpattern5.setExpression("Offset", "Params.linearpattern5_pitch")
linearpattern5.Occurrences = 2
body.Tip = linearpattern5
doc.recompute()

datumline4 = body.newObject("PartDesign::Line", "DatumLine003")
datumline4.Placement = App.Placement(App.Vector(0, 0, 0), App.Rotation(App.Vector(0, 0, 1), App.Vector(0.882024157, 0.471204188, 0)))
linearpattern6 = body.newObject("PartDesign::LinearPattern", "LinearPattern005")
linearpattern6.Originals = [groove]
linearpattern6.Direction = (datumline4, [""])
linearpattern6.Mode = "offset"
linearpattern6.setExpression("Offset", "Params.linearpattern6_pitch")
linearpattern6.Occurrences = 2
body.Tip = linearpattern6
doc.recompute()

datumline5 = body.newObject("PartDesign::Line", "DatumLine004")
datumline5.Placement = App.Placement(App.Vector(0, 0, 0), App.Rotation(App.Vector(0, 0, 1), App.Vector(0.707106781, 0.707106781, 0)))
linearpattern7 = body.newObject("PartDesign::LinearPattern", "LinearPattern006")
linearpattern7.Originals = [groove]
linearpattern7.Direction = (datumline5, [""])
linearpattern7.Mode = "offset"
linearpattern7.setExpression("Offset", "Params.linearpattern7_pitch")
linearpattern7.Occurrences = 2
body.Tip = linearpattern7
doc.recompute()

datumline6 = body.newObject("PartDesign::Line", "DatumLine005")
datumline6.Placement = App.Placement(App.Vector(0, 0, 0), App.Rotation(App.Vector(0, 0, 1), App.Vector(-0.981492278, -0.191501718, 0)))
linearpattern8 = body.newObject("PartDesign::LinearPattern", "LinearPattern007")
linearpattern8.Originals = [groove]
linearpattern8.Direction = (datumline6, [""])
linearpattern8.Mode = "offset"
linearpattern8.setExpression("Offset", "Params.linearpattern8_pitch")
linearpattern8.Occurrences = 2
body.Tip = linearpattern8
doc.recompute()

datumline7 = body.newObject("PartDesign::Line", "DatumLine006")
datumline7.Placement = App.Placement(App.Vector(0, 0, 0), App.Rotation(App.Vector(0, 0, 1), App.Vector(0.996877637, -0.078961866, 0)))
linearpattern9 = body.newObject("PartDesign::LinearPattern", "LinearPattern008")
linearpattern9.Originals = [groove]
linearpattern9.Direction = (datumline7, [""])
linearpattern9.Mode = "offset"
linearpattern9.setExpression("Offset", "Params.linearpattern9_pitch")
linearpattern9.Occurrences = 2
body.Tip = linearpattern9

doc.recompute()
